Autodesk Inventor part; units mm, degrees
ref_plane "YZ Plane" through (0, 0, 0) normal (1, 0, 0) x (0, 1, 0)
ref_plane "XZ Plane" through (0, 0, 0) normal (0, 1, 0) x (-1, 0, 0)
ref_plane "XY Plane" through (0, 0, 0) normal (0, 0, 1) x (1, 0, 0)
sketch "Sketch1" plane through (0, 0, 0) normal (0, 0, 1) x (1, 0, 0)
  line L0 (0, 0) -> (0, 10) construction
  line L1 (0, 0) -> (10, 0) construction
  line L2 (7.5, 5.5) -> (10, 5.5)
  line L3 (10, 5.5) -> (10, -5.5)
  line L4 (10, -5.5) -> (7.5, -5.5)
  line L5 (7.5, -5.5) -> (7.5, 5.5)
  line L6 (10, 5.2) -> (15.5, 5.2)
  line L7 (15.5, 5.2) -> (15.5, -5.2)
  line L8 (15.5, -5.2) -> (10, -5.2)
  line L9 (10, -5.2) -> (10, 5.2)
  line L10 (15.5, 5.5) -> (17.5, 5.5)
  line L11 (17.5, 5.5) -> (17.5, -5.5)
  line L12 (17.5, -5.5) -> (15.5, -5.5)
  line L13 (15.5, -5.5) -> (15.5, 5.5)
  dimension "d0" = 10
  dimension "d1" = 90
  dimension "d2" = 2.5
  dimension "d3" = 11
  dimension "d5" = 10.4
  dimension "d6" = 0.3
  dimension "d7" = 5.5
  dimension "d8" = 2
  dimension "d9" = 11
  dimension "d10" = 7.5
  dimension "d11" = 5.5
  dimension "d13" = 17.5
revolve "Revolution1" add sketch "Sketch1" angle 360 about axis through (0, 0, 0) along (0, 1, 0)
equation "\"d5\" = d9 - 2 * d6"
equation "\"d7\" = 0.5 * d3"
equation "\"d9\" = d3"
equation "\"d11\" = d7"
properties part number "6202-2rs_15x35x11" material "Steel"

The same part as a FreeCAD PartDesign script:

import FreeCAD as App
import Part
import Sketcher
from FreeCAD import Vector
Q = App.Units.Quantity

doc = App.newDocument("Part")
body = doc.addObject("PartDesign::Body", "Body")

# Sketch on XY plane
sketch1 = body.newObject("Sketcher::SketchObject", "Sketch")
sketch1.AttachmentSupport = (doc.getObject("XY_Plane"), [""])
sketch1.MapMode = "FlatFace"
sketch1.addGeometry([
    Part.LineSegment(Vector(10, 5.5, 0), Vector(7.5, 5.5, 0)),  # 0
    Part.LineSegment(Vector(7.5, 5.5, 0), Vector(7.5, -5.5, 0)),  # 1
    Part.LineSegment(Vector(7.5, -5.5, 0), Vector(10, -5.5, 0)),  # 2
    Part.LineSegment(Vector(10, -5.5, 0), Vector(10, -5.2, 0)),  # 3
    Part.LineSegment(Vector(10, -5.2, 0), Vector(15.5, -5.2, 0)),  # 4
    Part.LineSegment(Vector(15.5, -5.2, 0), Vector(15.5, -5.5, 0)),  # 5
    Part.LineSegment(Vector(15.5, -5.5, 0), Vector(17.5, -5.5, 0)),  # 6
    Part.LineSegment(Vector(17.5, -5.5, 0), Vector(17.5, 5.5, 0)),  # 7
    Part.LineSegment(Vector(17.5, 5.5, 0), Vector(15.5, 5.5, 0)),  # 8
    Part.LineSegment(Vector(15.5, 5.5, 0), Vector(15.5, 5.2, 0)),  # 9
    Part.LineSegment(Vector(15.5, 5.2, 0), Vector(10, 5.2, 0)),  # 10
    Part.LineSegment(Vector(10, 5.2, 0), Vector(10, 5.5, 0)),  # 11
], False)
sketch1.addConstraint([
    Sketcher.Constraint("Coincident", 0, 2, 1, 1),
    Sketcher.Constraint("Coincident", 1, 2, 2, 1),
    Sketcher.Constraint("Coincident", 2, 2, 3, 1),
    Sketcher.Constraint("Coincident", 3, 2, 4, 1),
    Sketcher.Constraint("Coincident", 4, 2, 5, 1),
    Sketcher.Constraint("Coincident", 5, 2, 6, 1),
    Sketcher.Constraint("Coincident", 6, 2, 7, 1),
    Sketcher.Constraint("Coincident", 7, 2, 8, 1),
    Sketcher.Constraint("Coincident", 8, 2, 9, 1),
    Sketcher.Constraint("Coincident", 9, 2, 10, 1),
    Sketcher.Constraint("Coincident", 10, 2, 11, 1),
    Sketcher.Constraint("Coincident", 11, 2, 0, 1),
    Sketcher.Constraint("Horizontal", 0),
    Sketcher.Constraint("Vertical", 1),
    Sketcher.Constraint("Horizontal", 2),
    Sketcher.Constraint("Vertical", 3),
    Sketcher.Constraint("Horizontal", 4),
    Sketcher.Constraint("Vertical", 5),
    Sketcher.Constraint("Horizontal", 6),
    Sketcher.Constraint("Vertical", 7),
    Sketcher.Constraint("Horizontal", 8),
    Sketcher.Constraint("Vertical", 9),
    Sketcher.Constraint("Horizontal", 10),
    Sketcher.Constraint("Vertical", 11),
    Sketcher.Constraint("Symmetric", 5, 2, 8, 2, -1),
    Sketcher.Constraint("Symmetric", 3, 2, 10, 2, -1),
    Sketcher.Constraint("Horizontal", 2, 2, 5, 2),
    Sketcher.Constraint("Horizontal", 0, 2, 7, 2),
    Sketcher.Constraint("DistanceX", 6, 1, 6, 2, Q("2 mm")),
    Sketcher.Constraint("DistanceY", 1, 2, 1, 1, Q("11 mm")),
    Sketcher.Constraint("DistanceX", 0, 2, 0, 1, Q("2.5 mm")),
    Sketcher.Constraint("DistanceX", 4, 1, 4, 2, Q("5.5 mm")),
    Sketcher.Constraint("DistanceY", 3, 1, 3, 2, Q("0.3 mm")),
    Sketcher.Constraint("DistanceX", -1, 1, 2, 2, Q("10 mm")),
])
revolution = body.newObject("PartDesign::Revolution", "Revolution")
revolution.Profile = sketch1
revolution.ReferenceAxis = (sketch1, ["V_Axis"])
revolution.Angle = 360

doc.recompute()
